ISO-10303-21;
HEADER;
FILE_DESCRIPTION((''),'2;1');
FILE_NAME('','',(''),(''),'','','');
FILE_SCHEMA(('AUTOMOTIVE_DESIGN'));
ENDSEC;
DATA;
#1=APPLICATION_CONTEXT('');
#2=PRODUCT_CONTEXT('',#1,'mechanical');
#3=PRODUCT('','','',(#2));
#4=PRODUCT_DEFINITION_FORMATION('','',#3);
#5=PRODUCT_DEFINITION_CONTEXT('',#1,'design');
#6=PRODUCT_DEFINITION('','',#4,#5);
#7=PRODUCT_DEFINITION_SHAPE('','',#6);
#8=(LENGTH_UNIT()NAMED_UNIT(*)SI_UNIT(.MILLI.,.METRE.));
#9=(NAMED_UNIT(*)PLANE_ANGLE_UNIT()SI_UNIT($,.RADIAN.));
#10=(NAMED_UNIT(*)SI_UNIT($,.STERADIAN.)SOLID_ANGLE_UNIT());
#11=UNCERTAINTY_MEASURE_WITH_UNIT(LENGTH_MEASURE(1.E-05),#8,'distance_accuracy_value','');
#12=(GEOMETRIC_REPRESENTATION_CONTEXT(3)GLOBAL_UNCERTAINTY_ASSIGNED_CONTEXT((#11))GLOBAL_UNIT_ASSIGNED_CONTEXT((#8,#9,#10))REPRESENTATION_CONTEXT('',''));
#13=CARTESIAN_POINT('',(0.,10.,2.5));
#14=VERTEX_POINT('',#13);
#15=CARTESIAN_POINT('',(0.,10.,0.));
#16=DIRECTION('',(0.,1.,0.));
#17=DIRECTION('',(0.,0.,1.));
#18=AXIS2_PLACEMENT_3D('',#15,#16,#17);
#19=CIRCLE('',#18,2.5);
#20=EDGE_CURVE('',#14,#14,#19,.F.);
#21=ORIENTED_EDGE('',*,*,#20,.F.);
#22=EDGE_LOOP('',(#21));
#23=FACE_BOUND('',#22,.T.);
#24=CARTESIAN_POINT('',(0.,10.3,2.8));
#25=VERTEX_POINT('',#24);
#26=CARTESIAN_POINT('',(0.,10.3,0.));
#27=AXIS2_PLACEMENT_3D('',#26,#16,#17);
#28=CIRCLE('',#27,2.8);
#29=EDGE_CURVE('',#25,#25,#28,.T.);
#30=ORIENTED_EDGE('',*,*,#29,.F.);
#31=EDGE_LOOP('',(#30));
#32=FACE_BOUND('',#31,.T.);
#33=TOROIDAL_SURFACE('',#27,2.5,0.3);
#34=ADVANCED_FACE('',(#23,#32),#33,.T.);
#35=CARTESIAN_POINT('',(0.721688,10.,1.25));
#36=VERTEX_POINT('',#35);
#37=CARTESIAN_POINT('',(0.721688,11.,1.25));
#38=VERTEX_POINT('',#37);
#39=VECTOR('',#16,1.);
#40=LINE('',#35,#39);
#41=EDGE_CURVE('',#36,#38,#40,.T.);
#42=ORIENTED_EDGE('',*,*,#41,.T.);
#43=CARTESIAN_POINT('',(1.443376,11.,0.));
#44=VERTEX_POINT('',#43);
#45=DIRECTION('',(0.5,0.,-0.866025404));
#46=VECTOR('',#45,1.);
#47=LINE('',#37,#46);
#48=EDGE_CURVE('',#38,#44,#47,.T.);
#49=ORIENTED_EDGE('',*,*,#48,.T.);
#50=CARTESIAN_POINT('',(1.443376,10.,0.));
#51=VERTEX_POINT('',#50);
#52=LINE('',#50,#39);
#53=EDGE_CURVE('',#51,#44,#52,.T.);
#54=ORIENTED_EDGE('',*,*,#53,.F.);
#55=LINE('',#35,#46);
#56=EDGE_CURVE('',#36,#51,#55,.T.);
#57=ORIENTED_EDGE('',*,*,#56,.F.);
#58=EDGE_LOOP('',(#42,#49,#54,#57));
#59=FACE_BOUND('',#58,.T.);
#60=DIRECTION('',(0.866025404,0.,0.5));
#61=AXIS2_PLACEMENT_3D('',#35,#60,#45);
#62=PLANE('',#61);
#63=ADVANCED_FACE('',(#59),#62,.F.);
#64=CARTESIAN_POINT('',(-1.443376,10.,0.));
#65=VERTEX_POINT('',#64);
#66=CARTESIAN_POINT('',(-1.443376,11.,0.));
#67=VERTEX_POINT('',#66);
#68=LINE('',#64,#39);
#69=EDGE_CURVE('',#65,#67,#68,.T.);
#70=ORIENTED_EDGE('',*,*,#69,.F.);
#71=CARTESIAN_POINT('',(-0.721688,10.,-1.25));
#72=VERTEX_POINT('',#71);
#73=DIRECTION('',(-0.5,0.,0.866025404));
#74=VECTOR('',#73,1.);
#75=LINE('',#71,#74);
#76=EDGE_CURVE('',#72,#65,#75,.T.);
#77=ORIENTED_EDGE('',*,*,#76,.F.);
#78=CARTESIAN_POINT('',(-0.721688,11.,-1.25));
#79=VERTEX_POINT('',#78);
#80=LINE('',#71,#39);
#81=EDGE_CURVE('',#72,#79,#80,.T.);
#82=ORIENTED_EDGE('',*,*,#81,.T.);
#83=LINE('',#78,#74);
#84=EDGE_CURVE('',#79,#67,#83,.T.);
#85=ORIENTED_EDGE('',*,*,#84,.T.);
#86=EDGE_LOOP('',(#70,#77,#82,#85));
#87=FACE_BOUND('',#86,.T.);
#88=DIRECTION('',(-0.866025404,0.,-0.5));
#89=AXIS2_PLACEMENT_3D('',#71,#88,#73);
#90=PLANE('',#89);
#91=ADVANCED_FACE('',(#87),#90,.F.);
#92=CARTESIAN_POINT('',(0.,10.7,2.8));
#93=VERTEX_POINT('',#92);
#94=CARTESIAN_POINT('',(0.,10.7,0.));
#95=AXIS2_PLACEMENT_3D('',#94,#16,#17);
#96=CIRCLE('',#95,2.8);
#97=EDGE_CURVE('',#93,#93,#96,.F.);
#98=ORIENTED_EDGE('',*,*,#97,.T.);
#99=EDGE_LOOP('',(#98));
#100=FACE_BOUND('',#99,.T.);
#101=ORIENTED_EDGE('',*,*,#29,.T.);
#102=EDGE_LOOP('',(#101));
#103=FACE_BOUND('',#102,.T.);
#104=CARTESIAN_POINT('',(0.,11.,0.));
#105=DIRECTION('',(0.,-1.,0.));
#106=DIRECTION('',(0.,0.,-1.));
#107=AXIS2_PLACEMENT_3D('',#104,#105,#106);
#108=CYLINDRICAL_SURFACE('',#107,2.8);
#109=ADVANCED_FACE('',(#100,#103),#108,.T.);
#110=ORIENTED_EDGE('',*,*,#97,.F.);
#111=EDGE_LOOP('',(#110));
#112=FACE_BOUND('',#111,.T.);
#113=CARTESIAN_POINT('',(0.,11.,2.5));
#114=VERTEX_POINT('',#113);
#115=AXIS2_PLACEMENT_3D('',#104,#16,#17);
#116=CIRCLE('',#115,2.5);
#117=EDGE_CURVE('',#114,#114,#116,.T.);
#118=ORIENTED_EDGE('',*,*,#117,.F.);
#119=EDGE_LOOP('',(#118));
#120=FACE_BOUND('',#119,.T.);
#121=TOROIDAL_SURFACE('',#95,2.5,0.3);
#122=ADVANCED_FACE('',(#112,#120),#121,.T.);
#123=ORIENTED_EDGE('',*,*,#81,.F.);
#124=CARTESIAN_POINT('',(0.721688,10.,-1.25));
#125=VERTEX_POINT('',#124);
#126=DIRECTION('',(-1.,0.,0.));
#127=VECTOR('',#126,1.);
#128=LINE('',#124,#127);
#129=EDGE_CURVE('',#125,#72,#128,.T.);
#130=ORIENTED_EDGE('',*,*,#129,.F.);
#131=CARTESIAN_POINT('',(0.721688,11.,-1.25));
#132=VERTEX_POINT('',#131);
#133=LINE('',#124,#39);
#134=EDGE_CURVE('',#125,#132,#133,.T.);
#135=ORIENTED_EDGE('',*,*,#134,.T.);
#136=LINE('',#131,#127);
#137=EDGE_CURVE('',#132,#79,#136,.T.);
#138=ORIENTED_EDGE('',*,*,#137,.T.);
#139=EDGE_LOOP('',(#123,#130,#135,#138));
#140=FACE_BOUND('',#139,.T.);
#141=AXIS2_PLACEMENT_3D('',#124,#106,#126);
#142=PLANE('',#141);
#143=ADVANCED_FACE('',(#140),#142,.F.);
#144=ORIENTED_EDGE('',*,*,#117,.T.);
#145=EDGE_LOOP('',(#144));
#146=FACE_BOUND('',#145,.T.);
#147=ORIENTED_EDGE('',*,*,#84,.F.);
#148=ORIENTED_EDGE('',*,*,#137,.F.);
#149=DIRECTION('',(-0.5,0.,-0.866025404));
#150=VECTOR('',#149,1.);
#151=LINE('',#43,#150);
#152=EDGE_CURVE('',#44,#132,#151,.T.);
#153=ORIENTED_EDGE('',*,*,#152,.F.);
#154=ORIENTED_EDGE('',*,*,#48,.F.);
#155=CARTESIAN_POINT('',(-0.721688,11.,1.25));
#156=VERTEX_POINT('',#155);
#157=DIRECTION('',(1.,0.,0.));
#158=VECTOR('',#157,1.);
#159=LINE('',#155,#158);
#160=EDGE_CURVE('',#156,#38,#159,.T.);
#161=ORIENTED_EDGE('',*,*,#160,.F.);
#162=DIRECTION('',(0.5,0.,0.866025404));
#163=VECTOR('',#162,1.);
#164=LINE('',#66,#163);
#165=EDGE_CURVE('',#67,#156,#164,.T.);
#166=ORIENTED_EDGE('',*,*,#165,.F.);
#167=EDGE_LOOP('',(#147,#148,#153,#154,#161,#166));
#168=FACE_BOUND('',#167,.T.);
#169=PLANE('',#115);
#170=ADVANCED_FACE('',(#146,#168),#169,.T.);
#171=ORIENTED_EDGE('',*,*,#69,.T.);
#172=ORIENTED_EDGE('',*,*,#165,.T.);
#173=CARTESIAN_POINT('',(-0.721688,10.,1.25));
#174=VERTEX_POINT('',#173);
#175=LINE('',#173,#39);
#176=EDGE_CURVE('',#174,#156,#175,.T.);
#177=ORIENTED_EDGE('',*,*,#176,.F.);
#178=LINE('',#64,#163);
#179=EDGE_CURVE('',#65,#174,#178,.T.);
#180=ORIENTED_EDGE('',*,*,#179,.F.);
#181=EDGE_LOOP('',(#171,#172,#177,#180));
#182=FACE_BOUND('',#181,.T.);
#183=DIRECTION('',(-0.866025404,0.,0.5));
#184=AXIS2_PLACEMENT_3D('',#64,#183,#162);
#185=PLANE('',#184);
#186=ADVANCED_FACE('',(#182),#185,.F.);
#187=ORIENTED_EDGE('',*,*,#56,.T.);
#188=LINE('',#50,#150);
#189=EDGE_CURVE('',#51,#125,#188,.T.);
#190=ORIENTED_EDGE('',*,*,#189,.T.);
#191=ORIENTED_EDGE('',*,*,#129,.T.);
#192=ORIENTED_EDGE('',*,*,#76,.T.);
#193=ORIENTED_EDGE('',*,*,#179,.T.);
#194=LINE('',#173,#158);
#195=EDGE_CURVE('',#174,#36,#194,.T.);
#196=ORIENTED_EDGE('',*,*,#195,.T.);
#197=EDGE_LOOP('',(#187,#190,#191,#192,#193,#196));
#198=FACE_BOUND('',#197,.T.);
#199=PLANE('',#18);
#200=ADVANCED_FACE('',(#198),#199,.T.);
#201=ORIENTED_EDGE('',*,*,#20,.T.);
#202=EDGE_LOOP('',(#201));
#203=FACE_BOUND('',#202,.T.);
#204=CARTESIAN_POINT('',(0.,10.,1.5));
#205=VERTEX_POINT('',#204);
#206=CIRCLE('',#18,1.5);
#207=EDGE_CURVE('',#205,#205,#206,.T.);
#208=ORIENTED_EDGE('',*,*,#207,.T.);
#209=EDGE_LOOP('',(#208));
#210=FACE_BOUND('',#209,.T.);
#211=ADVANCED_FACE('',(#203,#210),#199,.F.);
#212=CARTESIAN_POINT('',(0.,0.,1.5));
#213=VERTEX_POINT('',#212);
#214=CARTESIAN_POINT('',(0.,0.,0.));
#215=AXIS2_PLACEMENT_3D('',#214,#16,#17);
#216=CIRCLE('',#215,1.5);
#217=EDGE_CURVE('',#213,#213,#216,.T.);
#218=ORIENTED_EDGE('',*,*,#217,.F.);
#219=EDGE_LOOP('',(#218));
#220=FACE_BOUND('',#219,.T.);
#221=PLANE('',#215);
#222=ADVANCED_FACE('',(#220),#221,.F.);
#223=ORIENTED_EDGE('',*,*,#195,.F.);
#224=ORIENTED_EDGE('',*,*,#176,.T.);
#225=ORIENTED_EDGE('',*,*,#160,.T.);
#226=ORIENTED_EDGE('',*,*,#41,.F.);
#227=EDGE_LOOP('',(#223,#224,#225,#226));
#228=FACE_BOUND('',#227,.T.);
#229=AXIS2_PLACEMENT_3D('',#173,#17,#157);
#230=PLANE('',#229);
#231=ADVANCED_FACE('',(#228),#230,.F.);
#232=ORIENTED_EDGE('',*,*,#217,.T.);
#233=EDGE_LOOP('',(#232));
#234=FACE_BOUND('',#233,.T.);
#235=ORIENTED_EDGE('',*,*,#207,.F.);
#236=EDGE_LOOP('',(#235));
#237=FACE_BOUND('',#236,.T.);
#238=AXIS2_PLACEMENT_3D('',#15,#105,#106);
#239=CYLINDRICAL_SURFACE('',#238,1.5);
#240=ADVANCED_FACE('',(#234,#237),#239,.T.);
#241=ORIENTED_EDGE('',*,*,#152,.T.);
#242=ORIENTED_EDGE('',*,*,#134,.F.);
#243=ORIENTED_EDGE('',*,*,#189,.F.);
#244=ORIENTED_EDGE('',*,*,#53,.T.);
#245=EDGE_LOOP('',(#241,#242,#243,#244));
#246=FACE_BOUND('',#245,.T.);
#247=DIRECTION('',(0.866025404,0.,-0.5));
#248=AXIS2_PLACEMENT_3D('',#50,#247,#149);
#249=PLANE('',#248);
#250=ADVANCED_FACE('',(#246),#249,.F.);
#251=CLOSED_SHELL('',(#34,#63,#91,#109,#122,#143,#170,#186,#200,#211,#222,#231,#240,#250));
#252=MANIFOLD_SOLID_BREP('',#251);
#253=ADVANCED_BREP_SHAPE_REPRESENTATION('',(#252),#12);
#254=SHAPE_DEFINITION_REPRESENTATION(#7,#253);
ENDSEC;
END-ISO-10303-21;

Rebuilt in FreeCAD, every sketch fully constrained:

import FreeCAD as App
import Part
import Sketcher

V = App.Vector
Q = App.Units.Quantity


def edges_at(feature, points):
    """Names of the edges that pass closest to the given points."""
    edges = feature.Shape.Edges
    near = lambda p: min(range(len(edges)), key=lambda i: edges[i].distToShape(Part.Vertex(*p))[0])
    return sorted({f"Edge{near(p) + 1}" for p in points})


def add_polygon(sketch, points):
    """Adds a closed chain of lines whose ends are joined by coincident constraints."""
    first, n = sketch.GeometryCount, len(points)
    for a, b in zip(points, points[1:] + points[:1]):
        sketch.addGeometry(Part.LineSegment(App.Vector(*a, 0), App.Vector(*b, 0)), False)
    for i in range(n):
        sketch.addConstraint(Sketcher.Constraint("Coincident", first + i, 2, first + (i + 1) % n, 1))

doc = App.newDocument("Part")
params = doc.addObject("Spreadsheet::Sheet", "Params")
for row, (alias, value) in enumerate([
    ("sketch1_diameter", "3 mm"),
    ("pad1_length", "10 mm"),
    ("sketch2_diameter", "5.6 mm"),
    ("pad2_length", "1 mm"),
    ("pocket1_length", "1 mm"),
    ("fillet_radius", "0.3 mm"),
], start=1):
    params.set(f"A{row}", alias)
    params.set(f"B{row}", "=" + value)
    params.setAlias(f"B{row}", alias)

body = doc.addObject("PartDesign::Body", "Body")

# Sketch on XZ plane
sketch1 = body.newObject("Sketcher::SketchObject", "Sketch")
sketch1.AttachmentSupport = (doc.getObject("XZ_Plane"), [""])
sketch1.MapMode = "FlatFace"
sketch1.addGeometry(Part.Circle(V(0, 0, 0), V(0, 0, 1), 1.5), False)
sketch1.addConstraint(Sketcher.Constraint("Coincident", 0, 3, -1, 1))
sketch1.addConstraint(Sketcher.Constraint("Diameter", 0, Q("3 mm")))
sketch1.setExpression("Constraints[1]", "Params.sketch1_diameter")
pad1 = body.newObject("PartDesign::Pad", "Pad")
pad1.Profile = sketch1
pad1.setExpression("Length", "Params.pad1_length")
pad1.Reversed = True

# Sketch on XZ plane
sketch2 = body.newObject("Sketcher::SketchObject", "Sketch001")
sketch2.AttachmentSupport = (doc.getObject("XZ_Plane"), [""])
sketch2.MapMode = "FlatFace"
sketch2.AttachmentOffset = App.Placement(V(0, 0, -10), App.Rotation())
sketch2.addGeometry(Part.Circle(V(0, 0, 0), V(0, 0, 1), 2.8), False)
sketch2.addConstraint(Sketcher.Constraint("Coincident", 0, 3, -1, 1))
sketch2.addConstraint(Sketcher.Constraint("Diameter", 0, Q("5.6 mm")))
sketch2.setExpression("Constraints[1]", "Params.sketch2_diameter")
pad2 = body.newObject("PartDesign::Pad", "Pad001")
pad2.Profile = sketch2
pad2.setExpression("Length", "Params.pad2_length")
pad2.Reversed = True

# Sketch on XZ plane
sketch3 = body.newObject("Sketcher::SketchObject", "Sketch002")
sketch3.AttachmentSupport = (doc.getObject("XZ_Plane"), [""])
sketch3.MapMode = "FlatFace"
sketch3.AttachmentOffset = App.Placement(V(0, 0, -11), App.Rotation())
add_polygon(sketch3, [(-1.4, 0), (-0.7, 1.2), (0.7, 1.2), (1.4, 0), (0.7, -1.2), (-0.7, -1.2)])  # lines 0-5
sketch3.addConstraint(Sketcher.Constraint("Horizontal", 1))
sketch3.addConstraint(Sketcher.Constraint("Horizontal", 4))
sketch3.addConstraint(Sketcher.Constraint("Symmetric", 0, 2, 3, 2, -1, 1))
sketch3.addConstraint(Sketcher.Constraint("Symmetric", 2, 2, 5, 2, -1, 1))
sketch3.addConstraint(Sketcher.Constraint("PointOnObject", 2, 2, -1))
sketch3.addConstraint(Sketcher.Constraint("Parallel", 2, 5))
sketch3.addConstraint(Sketcher.Constraint("Vertical", 1, 2, 3, 2))
sketch3.addConstraint(Sketcher.Constraint("Angle", 0, Q("60 deg")))
sketch3.addConstraint(Sketcher.Constraint("DistanceY", 3, 2, 1, 2, Q("2.5 mm")))
sketch3.addConstraint(Sketcher.Constraint("DistanceX", 1, 1, 1, 2, Q("1.443376 mm")))
pocket1 = body.newObject("PartDesign::Pocket", "Pocket")
pocket1.Profile = sketch3
pocket1.setExpression("Length", "Params.pocket1_length")
pocket1.Reversed = True
doc.recompute()

fillet = body.newObject("PartDesign::Fillet", "Fillet")
fillet.Base = (pocket1, edges_at(pocket1, [(0, 10, -2.8), (0, 11, -2.8)]))
fillet.setExpression("Radius", "Params.fillet_radius")

doc.recompute()
